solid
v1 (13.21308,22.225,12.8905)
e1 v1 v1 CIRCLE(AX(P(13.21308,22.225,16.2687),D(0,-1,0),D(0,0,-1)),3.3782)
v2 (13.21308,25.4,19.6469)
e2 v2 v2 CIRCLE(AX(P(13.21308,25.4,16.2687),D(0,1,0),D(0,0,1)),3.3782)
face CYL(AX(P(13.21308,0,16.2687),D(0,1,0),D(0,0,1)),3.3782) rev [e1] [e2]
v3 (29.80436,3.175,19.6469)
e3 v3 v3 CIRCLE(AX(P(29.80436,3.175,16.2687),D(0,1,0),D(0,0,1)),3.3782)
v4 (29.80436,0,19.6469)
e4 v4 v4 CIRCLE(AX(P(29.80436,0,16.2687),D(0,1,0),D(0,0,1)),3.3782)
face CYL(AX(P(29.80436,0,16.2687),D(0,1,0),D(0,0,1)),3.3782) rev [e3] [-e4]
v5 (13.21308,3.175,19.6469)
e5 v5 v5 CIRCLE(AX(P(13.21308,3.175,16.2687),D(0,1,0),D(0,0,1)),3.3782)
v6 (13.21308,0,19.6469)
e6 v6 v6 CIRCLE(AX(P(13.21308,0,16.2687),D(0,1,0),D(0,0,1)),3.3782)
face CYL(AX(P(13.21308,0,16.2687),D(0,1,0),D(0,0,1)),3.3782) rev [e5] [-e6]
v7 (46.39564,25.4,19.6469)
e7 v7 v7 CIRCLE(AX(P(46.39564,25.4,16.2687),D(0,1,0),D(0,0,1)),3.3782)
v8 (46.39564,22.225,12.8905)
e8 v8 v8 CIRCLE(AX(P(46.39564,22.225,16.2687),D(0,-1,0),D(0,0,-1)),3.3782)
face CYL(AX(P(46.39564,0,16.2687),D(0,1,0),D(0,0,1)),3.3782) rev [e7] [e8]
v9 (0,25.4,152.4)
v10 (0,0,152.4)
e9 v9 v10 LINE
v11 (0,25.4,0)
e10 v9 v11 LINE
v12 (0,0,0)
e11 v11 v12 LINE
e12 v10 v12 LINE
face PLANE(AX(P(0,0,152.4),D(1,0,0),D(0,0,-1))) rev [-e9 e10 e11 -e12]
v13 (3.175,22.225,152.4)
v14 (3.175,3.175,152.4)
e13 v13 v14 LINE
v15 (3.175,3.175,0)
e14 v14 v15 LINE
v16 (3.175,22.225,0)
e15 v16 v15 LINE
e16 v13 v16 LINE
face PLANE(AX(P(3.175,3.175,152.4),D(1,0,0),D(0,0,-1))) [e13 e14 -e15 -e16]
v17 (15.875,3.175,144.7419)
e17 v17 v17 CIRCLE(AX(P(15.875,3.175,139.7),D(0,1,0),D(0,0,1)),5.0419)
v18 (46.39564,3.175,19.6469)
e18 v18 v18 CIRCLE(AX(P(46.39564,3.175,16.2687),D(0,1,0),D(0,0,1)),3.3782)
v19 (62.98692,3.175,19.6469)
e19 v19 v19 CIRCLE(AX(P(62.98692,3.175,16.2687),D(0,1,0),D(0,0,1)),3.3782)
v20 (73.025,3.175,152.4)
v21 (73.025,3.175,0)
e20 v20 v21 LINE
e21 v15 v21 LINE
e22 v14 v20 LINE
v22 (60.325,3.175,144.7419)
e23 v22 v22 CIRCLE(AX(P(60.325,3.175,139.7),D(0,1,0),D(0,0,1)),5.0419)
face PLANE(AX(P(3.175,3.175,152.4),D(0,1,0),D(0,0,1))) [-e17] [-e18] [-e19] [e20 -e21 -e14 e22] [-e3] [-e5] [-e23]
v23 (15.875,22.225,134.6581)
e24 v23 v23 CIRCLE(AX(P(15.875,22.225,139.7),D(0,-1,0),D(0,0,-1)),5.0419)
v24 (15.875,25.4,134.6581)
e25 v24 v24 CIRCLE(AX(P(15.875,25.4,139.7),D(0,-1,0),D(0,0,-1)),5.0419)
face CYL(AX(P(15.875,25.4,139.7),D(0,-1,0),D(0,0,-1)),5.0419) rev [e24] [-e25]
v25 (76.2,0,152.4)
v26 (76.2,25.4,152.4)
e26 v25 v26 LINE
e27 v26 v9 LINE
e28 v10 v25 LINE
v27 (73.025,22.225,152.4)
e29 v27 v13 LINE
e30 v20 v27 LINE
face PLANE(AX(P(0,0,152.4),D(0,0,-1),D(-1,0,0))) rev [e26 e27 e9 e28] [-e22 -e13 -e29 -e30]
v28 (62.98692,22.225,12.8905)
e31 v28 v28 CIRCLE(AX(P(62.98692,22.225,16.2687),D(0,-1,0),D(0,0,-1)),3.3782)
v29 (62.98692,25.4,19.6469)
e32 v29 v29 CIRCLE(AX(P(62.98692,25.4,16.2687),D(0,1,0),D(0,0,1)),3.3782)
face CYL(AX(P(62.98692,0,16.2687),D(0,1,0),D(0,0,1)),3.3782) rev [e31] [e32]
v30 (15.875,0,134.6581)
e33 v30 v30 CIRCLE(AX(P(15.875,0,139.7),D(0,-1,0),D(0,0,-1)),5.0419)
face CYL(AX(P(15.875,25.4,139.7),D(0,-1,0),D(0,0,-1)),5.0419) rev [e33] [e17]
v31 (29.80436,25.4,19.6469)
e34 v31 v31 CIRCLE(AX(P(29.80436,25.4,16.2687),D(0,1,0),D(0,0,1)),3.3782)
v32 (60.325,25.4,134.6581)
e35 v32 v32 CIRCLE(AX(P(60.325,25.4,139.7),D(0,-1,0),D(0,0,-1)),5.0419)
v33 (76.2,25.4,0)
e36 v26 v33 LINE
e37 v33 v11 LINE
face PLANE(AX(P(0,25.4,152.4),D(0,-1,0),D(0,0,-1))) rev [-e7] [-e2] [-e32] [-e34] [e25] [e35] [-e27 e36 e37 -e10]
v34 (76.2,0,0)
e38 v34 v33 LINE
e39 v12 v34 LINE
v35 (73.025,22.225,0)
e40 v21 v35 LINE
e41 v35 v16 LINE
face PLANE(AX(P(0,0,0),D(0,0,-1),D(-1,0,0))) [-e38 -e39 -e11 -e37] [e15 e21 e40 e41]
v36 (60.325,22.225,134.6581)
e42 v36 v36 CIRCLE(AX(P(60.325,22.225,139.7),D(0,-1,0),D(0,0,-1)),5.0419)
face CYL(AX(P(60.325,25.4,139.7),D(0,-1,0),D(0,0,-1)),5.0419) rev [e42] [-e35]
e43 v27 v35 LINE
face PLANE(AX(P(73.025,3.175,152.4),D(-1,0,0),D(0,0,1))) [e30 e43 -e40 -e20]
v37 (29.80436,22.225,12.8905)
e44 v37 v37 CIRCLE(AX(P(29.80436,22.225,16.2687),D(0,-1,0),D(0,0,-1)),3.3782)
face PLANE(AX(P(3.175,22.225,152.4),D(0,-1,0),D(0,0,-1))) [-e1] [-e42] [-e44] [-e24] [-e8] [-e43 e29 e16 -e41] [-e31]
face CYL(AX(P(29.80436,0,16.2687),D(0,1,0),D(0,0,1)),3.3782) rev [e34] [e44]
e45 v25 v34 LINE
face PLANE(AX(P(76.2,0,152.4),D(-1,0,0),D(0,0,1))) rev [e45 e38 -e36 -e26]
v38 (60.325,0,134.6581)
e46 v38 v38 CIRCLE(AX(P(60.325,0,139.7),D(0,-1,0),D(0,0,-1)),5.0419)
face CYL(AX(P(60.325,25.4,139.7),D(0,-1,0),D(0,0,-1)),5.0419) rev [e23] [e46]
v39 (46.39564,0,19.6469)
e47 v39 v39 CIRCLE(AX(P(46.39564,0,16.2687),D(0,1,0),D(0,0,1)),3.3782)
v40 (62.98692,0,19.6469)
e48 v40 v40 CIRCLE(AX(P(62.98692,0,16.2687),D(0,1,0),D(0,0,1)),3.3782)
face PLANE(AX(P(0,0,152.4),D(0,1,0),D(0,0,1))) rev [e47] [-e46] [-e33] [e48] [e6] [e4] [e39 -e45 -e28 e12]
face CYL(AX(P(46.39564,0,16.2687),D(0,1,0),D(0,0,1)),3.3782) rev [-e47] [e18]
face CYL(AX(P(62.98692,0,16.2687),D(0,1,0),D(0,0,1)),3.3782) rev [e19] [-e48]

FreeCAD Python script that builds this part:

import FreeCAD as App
import Part
import Sketcher

V = App.Vector
Q = App.Units.Quantity

doc = App.newDocument("Part")
body = doc.addObject("PartDesign::Body", "Body")

# Sketch on XY plane
sketch1 = body.newObject("Sketcher::SketchObject", "Sketch")
sketch1.AttachmentSupport = (doc.getObject("XY_Plane"), [""])
sketch1.MapMode = "FlatFace"
sketch1.addGeometry(Part.LineSegment(V(0, 25, 0), V(0, 0, 0)), False)
sketch1.addGeometry(Part.LineSegment(V(0, 0, 0), V(76, 0, 0)), False)
sketch1.addGeometry(Part.LineSegment(V(76, 0, 0), V(76, 25, 0)), False)
sketch1.addGeometry(Part.LineSegment(V(76, 25, 0), V(0, 25, 0)), False)
sketch1.addGeometry(Part.LineSegment(V(73, 3, 0), V(3, 3, 0)), False)
sketch1.addGeometry(Part.LineSegment(V(3, 3, 0), V(3, 22, 0)), False)
sketch1.addGeometry(Part.LineSegment(V(3, 22, 0), V(73, 22, 0)), False)
sketch1.addGeometry(Part.LineSegment(V(73, 22, 0), V(73, 3, 0)), False)
sketch1.addConstraint(Sketcher.Constraint("Coincident", 0, 2, 1, 1))
sketch1.addConstraint(Sketcher.Constraint("Coincident", 1, 2, 2, 1))
sketch1.addConstraint(Sketcher.Constraint("Coincident", 2, 2, 3, 1))
sketch1.addConstraint(Sketcher.Constraint("Coincident", 3, 2, 0, 1))
sketch1.addConstraint(Sketcher.Constraint("Coincident", 4, 2, 5, 1))
sketch1.addConstraint(Sketcher.Constraint("Coincident", 5, 2, 6, 1))
sketch1.addConstraint(Sketcher.Constraint("Coincident", 6, 2, 7, 1))
sketch1.addConstraint(Sketcher.Constraint("Coincident", 7, 2, 4, 1))
sketch1.addConstraint(Sketcher.Constraint("Vertical", 0))
sketch1.addConstraint(Sketcher.Constraint("Horizontal", 1))
sketch1.addConstraint(Sketcher.Constraint("Vertical", 2))
sketch1.addConstraint(Sketcher.Constraint("Horizontal", 3))
sketch1.addConstraint(Sketcher.Constraint("Horizontal", 4))
sketch1.addConstraint(Sketcher.Constraint("Vertical", 5))
sketch1.addConstraint(Sketcher.Constraint("Horizontal", 6))
sketch1.addConstraint(Sketcher.Constraint("Vertical", 7))
sketch1.addConstraint(Sketcher.Constraint("Coincident", 0, 2, -1, 1))
sketch1.addConstraint(Sketcher.Constraint("DistanceX", 1, 1, 1, 2, Q("3 in")))
sketch1.addConstraint(Sketcher.Constraint("DistanceY", 0, 2, 0, 1, Q("1 in")))
sketch1.addConstraint(Sketcher.Constraint("DistanceX", 4, 2, 4, 1, Q("2.75 in")))
sketch1.addConstraint(Sketcher.Constraint("DistanceY", 5, 1, 5, 2, Q("0.75 in")))
sketch1.addConstraint(Sketcher.Constraint("DistanceX", -1, 1, 4, 2, Q("0.125 in")))
sketch1.addConstraint(Sketcher.Constraint("DistanceY", -1, 1, 4, 2, Q("0.125 in")))
pad1 = body.newObject("PartDesign::Pad", "Pad")
pad1.Profile = sketch1
pad1.Length = Q("6 in")

# Sketch on XZ plane
sketch2 = body.newObject("Sketcher::SketchObject", "Sketch001")
sketch2.AttachmentSupport = (doc.getObject("XZ_Plane"), [""])
sketch2.MapMode = "FlatFace"
sketch2.AttachmentOffset = App.Placement(V(0, 0, -1 * 25.4), App.Rotation())
sketch2.addGeometry(Part.Circle(V(13.2, 16.3, 0), V(0, 0, 1), 3.4), False)
sketch2.addGeometry(Part.Circle(V(29.8, 16.3, 0), V(0, 0, 1), 3.4), False)
sketch2.addGeometry(Part.Circle(V(46.4, 16.3, 0), V(0, 0, 1), 3.4), False)
sketch2.addGeometry(Part.Circle(V(63, 16.3, 0), V(0, 0, 1), 3.4), False)
sketch2.addConstraint(Sketcher.Constraint("Equal", 0, 1))
sketch2.addConstraint(Sketcher.Constraint("Equal", 1, 2))
sketch2.addConstraint(Sketcher.Constraint("Equal", 2, 3))
sketch2.addConstraint(Sketcher.Constraint("Horizontal", 0, 3, 1, 3))
sketch2.addConstraint(Sketcher.Constraint("Horizontal", 1, 3, 2, 3))
sketch2.addConstraint(Sketcher.Constraint("Horizontal", 2, 3, 3, 3))
sketch2.addConstraint(Sketcher.Constraint("Diameter", 0, Q("0.266 in")))
sketch2.addConstraint(Sketcher.Constraint("DistanceX", -1, 1, 0, 3, Q("0.5202 in")))
sketch2.addConstraint(Sketcher.Constraint("DistanceY", -1, 1, 0, 3, Q("0.6405 in")))
sketch2.addConstraint(Sketcher.Constraint("DistanceX", -1, 1, 1, 3, Q("1.1734 in")))
sketch2.addConstraint(Sketcher.Constraint("DistanceX", -1, 1, 2, 3, Q("1.8266 in")))
sketch2.addConstraint(Sketcher.Constraint("DistanceX", -1, 1, 3, 3, Q("2.4798 in")))
pocket1 = body.newObject("PartDesign::Pocket", "Pocket")
pocket1.Profile = sketch2
pocket1.Type = "ThroughAll"
pocket1.Reversed = True

# Sketch on XZ plane
sketch3 = body.newObject("Sketcher::SketchObject", "Sketch002")
sketch3.AttachmentSupport = (doc.getObject("XZ_Plane"), [""])
sketch3.MapMode = "FlatFace"
sketch3.addGeometry(Part.Circle(V(60, 140, 0), V(0, 0, 1), 5), False)
sketch3.addGeometry(Part.Circle(V(16, 140, 0), V(0, 0, 1), 5), False)
sketch3.addConstraint(Sketcher.Constraint("Equal", 0, 1))
sketch3.addConstraint(Sketcher.Constraint("Horizontal", 0, 3, 1, 3))
sketch3.addConstraint(Sketcher.Constraint("Diameter", 0, Q("0.397 in")))
sketch3.addConstraint(Sketcher.Constraint("DistanceY", -1, 1, 0, 3, Q("5.5 in")))
sketch3.addConstraint(Sketcher.Constraint("DistanceX", 1, 3, 0, 3, Q("1.75 in")))
sketch3.addConstraint(Sketcher.Constraint("DistanceX", -1, 1, 0, 3, Q("2.375 in")))
pocket2 = body.newObject("PartDesign::Pocket", "Pocket001")
pocket2.Profile = sketch3
pocket2.Type = "ThroughAll"

doc.recompute()
